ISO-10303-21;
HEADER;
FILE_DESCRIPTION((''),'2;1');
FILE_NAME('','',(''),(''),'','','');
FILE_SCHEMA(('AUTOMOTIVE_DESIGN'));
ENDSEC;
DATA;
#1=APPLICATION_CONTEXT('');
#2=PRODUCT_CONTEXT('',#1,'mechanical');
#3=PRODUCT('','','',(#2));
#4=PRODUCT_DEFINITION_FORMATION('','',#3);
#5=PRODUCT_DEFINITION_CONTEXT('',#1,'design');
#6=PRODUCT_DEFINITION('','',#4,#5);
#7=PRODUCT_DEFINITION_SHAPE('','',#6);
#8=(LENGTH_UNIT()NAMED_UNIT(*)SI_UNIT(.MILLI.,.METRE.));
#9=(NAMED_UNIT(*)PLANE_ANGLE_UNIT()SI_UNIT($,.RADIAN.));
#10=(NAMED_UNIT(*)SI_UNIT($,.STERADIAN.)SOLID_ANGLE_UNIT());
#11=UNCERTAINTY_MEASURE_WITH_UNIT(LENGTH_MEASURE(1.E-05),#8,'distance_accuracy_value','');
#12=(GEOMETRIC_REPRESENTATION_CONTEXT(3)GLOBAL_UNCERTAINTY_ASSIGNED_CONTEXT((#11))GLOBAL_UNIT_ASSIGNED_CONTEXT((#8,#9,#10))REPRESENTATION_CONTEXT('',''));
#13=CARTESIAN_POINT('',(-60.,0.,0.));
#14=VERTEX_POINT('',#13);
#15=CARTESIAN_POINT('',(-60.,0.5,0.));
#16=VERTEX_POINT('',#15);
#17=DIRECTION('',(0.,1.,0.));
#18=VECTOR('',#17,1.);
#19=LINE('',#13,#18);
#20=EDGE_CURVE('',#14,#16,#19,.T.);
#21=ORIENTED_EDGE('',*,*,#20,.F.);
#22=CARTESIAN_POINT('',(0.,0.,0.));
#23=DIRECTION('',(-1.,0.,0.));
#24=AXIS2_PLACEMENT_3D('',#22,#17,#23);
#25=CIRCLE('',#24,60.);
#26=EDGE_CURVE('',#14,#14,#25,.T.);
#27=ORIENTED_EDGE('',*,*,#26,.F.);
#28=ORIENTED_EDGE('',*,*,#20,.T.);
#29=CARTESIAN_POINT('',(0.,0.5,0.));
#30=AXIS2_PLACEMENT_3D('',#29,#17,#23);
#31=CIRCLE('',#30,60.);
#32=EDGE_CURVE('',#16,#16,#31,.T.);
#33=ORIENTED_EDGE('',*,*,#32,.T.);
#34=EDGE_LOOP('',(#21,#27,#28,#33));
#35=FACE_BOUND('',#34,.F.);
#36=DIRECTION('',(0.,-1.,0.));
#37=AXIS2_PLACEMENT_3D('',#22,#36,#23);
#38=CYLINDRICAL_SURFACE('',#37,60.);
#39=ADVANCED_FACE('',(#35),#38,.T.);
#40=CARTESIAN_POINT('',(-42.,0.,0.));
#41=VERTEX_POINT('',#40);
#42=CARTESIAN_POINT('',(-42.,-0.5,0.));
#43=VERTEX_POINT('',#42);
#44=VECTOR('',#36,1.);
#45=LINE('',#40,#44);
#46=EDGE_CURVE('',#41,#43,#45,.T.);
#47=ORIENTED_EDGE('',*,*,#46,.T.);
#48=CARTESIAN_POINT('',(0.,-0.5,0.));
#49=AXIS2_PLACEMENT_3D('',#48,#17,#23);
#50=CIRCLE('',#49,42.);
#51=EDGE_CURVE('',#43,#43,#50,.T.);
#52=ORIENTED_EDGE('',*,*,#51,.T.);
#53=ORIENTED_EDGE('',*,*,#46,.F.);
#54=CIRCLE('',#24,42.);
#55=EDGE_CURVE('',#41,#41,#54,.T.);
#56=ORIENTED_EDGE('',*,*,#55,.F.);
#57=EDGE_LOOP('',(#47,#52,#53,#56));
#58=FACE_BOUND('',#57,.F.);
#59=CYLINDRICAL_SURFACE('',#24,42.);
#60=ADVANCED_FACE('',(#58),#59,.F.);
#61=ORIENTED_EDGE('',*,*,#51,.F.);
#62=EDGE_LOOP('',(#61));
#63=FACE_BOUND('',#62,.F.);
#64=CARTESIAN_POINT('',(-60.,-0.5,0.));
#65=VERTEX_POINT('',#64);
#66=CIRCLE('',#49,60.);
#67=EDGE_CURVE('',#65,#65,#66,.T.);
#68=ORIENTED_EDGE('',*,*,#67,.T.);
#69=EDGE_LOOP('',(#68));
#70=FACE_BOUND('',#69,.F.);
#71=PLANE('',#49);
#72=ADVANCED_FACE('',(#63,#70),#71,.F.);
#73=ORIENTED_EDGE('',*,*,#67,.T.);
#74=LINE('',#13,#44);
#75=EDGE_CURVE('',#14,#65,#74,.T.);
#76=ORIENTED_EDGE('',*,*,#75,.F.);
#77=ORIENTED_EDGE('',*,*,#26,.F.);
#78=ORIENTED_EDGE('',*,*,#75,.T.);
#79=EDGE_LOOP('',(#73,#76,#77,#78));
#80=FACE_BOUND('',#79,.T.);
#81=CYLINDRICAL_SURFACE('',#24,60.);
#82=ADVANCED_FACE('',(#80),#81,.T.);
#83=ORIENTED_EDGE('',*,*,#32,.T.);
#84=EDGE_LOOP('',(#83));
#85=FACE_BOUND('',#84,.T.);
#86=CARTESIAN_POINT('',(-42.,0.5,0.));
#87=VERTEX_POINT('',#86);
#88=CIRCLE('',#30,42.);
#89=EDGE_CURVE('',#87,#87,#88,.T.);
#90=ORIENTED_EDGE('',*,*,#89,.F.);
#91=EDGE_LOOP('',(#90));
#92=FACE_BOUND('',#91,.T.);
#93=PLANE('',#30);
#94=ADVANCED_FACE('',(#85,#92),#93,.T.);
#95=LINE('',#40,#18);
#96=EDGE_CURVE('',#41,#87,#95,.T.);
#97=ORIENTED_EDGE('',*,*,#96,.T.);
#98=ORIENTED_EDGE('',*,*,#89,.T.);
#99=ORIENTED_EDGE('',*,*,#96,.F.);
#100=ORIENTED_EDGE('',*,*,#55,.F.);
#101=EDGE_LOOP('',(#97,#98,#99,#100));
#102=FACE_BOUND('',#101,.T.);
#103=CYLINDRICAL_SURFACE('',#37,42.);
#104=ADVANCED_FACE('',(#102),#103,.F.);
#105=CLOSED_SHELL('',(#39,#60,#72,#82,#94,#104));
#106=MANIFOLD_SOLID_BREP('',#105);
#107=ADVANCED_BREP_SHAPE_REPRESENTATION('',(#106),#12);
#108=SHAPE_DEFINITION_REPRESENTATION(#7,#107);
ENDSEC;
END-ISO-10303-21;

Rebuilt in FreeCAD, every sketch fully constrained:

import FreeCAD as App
import Part
import Sketcher

V = App.Vector

doc = App.newDocument("Part")
body = doc.addObject("PartDesign::Body", "Body")

sketch1 = body.newObject("Sketcher::SketchObject", "Sketch")
sketch1.AttachmentSupport = (doc.getObject("XZ_Plane"), [""])
sketch1.MapMode = "FlatFace"
sketch1.addGeometry([
    Part.Circle(V(0, 0, 0), V(0, 0, 1), 60),
    Part.Circle(V(0, 0, 0), V(0, 0, 1), 42),
], False)
sketch1.addConstraint([
    Sketcher.Constraint("Coincident", 0, 3, -1, 1),
    Sketcher.Constraint("Coincident", 1, 3, -1, 1),
    Sketcher.Constraint("Diameter", 0, 120.0),
    Sketcher.Constraint("Diameter", 1, 84.0),
])
pad1 = body.newObject("PartDesign::Pad", "Pad")
pad1.Profile = sketch1
pad1.Length = 1
pad1.Midplane = True

doc.recompute()
